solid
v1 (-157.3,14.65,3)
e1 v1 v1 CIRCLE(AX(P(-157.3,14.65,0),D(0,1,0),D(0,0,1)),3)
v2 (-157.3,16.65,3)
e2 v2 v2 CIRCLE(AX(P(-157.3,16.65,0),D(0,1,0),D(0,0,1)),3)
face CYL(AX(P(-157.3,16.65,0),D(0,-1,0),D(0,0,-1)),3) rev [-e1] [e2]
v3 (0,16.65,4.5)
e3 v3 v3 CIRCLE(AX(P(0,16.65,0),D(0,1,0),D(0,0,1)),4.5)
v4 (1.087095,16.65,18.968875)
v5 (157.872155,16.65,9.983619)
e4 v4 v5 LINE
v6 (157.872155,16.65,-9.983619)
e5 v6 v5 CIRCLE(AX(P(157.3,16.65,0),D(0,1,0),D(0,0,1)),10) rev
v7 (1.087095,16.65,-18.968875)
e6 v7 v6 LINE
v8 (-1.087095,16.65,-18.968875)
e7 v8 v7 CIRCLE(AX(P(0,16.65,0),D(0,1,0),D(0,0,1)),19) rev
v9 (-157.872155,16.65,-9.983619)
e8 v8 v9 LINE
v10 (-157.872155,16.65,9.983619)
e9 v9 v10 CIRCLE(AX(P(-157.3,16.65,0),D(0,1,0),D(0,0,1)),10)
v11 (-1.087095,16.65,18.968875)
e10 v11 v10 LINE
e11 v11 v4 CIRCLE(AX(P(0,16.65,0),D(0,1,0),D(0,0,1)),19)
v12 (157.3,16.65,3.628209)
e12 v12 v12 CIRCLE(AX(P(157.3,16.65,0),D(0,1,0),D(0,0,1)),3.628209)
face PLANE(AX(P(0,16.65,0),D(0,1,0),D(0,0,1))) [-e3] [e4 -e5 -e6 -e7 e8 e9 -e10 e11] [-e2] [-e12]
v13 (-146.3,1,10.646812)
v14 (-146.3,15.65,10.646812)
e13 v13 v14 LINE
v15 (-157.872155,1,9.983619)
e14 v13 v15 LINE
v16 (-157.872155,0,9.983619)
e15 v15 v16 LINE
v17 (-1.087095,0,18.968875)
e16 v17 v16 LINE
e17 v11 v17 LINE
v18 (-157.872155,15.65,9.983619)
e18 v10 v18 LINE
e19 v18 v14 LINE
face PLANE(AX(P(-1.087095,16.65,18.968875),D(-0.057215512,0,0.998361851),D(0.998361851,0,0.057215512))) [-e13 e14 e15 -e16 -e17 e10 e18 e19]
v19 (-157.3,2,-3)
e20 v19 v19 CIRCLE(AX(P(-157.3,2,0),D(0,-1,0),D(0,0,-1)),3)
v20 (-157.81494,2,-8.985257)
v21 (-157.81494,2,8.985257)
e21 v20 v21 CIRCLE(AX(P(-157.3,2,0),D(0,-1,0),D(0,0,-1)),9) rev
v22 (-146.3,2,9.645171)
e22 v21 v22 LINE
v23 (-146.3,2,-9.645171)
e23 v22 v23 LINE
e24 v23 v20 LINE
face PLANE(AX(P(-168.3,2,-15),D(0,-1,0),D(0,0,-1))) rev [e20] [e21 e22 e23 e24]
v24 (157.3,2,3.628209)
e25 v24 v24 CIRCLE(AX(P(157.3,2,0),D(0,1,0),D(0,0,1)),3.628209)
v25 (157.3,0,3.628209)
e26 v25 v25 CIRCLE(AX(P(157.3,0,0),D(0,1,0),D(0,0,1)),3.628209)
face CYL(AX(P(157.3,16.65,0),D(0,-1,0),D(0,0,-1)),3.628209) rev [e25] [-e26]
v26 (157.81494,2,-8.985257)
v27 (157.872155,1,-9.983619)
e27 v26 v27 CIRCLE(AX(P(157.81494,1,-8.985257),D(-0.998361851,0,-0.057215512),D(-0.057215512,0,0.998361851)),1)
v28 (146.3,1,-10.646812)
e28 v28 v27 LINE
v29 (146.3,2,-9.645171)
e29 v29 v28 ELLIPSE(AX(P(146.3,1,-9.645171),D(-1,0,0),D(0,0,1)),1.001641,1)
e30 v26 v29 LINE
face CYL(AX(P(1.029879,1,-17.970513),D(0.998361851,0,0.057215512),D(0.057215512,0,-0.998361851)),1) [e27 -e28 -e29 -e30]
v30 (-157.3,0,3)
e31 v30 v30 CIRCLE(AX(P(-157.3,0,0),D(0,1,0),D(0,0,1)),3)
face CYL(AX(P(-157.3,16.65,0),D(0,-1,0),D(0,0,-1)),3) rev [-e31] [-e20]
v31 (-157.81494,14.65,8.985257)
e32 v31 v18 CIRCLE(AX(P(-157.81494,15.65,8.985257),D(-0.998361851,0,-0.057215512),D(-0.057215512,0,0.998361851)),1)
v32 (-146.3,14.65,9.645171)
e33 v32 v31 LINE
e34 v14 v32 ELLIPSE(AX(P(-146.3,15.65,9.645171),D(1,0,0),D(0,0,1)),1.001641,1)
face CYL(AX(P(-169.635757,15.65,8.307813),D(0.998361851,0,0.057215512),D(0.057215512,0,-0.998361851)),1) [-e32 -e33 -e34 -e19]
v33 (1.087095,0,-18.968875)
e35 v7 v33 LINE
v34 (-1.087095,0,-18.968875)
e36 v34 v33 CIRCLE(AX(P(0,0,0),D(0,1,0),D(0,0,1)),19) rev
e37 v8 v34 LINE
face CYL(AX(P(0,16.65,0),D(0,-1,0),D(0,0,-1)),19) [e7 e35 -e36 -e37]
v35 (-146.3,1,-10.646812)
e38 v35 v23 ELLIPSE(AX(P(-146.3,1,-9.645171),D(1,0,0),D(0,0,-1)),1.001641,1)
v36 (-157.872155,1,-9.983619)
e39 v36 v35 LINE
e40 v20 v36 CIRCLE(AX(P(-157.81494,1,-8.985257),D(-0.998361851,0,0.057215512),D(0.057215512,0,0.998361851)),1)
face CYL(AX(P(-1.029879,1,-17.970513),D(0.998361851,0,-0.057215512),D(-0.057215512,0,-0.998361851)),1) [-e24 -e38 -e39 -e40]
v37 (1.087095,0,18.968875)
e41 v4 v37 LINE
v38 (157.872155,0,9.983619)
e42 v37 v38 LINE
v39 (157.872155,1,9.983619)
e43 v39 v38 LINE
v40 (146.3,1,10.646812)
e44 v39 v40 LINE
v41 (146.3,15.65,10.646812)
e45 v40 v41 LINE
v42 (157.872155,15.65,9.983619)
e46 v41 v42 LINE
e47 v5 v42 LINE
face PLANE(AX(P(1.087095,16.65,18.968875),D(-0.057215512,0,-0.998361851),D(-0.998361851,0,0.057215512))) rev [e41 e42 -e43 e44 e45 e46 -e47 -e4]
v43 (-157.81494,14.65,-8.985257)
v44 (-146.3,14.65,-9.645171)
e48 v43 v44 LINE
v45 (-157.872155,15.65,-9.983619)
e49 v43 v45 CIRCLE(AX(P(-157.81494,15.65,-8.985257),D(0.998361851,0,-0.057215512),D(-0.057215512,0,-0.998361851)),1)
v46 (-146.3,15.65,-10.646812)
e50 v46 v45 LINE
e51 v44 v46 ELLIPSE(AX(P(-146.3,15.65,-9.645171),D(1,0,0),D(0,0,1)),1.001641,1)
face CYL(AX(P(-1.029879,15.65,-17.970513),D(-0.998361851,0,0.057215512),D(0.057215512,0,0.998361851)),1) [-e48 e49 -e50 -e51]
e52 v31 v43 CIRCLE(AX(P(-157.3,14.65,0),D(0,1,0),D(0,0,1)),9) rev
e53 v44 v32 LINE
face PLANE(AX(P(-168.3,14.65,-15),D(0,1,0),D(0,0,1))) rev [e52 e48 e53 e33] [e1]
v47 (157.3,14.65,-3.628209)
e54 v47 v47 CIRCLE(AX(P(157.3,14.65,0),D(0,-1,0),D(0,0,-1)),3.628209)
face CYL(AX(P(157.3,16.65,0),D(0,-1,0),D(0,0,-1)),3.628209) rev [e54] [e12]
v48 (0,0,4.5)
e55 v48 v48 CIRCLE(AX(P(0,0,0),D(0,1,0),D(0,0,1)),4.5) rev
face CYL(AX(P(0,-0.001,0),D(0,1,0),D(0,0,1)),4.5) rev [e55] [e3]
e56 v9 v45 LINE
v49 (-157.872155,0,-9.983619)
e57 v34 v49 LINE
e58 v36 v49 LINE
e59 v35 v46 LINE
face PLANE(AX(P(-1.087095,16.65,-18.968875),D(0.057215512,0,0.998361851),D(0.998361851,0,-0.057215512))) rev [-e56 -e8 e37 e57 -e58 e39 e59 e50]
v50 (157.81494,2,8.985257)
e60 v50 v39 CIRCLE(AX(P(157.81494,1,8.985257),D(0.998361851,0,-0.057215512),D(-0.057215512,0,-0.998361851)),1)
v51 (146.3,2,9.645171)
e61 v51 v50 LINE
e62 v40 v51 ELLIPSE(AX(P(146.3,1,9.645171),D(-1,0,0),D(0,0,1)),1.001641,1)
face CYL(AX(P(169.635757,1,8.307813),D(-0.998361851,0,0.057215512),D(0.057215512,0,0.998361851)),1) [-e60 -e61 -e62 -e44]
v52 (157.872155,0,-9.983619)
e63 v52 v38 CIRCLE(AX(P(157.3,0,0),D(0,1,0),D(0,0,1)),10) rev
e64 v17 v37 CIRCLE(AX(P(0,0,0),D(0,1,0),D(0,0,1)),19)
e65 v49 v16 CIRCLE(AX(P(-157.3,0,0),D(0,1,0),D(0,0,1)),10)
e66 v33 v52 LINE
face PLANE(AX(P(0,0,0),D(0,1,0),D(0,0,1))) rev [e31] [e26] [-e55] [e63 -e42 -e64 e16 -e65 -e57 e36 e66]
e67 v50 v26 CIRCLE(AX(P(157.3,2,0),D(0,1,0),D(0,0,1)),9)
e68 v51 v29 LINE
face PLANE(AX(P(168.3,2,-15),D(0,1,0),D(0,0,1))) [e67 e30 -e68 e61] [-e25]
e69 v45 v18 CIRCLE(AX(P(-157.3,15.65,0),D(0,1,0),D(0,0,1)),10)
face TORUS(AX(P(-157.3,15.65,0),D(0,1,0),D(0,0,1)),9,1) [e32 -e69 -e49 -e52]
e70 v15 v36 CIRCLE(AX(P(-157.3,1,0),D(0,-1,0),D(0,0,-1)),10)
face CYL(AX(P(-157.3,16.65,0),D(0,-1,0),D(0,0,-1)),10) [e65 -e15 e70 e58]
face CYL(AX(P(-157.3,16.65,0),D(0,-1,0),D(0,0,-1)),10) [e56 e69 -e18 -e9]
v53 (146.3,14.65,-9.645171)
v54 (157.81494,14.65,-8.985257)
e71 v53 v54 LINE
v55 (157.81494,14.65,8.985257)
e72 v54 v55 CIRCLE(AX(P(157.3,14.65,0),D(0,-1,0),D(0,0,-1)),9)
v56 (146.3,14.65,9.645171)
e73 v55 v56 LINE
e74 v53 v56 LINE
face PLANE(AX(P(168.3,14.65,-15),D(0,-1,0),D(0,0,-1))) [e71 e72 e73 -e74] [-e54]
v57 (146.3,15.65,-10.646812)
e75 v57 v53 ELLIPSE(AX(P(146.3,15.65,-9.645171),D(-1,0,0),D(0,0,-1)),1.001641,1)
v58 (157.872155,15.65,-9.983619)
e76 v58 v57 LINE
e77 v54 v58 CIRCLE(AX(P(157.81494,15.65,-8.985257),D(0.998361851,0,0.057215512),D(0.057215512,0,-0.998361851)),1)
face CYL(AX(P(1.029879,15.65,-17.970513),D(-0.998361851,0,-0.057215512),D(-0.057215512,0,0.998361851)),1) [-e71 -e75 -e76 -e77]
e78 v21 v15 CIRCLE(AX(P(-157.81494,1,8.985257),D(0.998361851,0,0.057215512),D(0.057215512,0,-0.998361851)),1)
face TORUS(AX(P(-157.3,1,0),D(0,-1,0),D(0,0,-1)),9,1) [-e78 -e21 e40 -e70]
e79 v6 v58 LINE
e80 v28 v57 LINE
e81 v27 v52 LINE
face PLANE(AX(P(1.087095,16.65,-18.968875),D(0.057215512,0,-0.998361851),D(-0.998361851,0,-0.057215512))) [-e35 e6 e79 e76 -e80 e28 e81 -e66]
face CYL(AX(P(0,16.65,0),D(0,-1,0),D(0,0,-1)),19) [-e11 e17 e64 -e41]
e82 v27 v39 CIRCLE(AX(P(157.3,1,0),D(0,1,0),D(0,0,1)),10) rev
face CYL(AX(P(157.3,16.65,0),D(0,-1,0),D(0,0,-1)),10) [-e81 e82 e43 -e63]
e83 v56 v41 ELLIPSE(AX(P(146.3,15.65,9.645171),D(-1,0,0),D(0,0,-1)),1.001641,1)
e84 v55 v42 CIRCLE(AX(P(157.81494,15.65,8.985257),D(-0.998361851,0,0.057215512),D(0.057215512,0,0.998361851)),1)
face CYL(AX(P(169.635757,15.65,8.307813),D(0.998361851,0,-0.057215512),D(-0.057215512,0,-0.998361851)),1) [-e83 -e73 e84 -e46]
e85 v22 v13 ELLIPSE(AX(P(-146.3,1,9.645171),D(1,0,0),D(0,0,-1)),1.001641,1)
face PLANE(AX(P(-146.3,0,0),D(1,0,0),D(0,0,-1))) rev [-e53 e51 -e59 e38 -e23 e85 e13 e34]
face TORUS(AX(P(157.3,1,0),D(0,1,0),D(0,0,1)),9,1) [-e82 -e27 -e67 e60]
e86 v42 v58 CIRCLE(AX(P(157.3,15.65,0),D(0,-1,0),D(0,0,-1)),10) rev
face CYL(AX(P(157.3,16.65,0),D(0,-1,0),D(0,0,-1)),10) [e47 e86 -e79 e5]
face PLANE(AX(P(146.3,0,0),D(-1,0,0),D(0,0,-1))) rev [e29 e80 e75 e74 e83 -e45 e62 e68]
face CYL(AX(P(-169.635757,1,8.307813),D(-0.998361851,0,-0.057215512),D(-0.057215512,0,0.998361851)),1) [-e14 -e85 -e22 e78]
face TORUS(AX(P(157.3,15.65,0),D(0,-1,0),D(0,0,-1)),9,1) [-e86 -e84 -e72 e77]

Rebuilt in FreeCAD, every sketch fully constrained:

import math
import FreeCAD as App
import Part
import Sketcher

V = App.Vector
Q = App.Units.Quantity


def edges_at(feature, points):
    """Names of the edges that pass closest to the given points."""
    edges = feature.Shape.Edges
    near = lambda p: min(range(len(edges)), key=lambda i: edges[i].distToShape(Part.Vertex(*p))[0])
    return sorted({f"Edge{near(p) + 1}" for p in points})


def add_polygon(sketch, points):
    """Adds a closed chain of lines whose ends are joined by coincident constraints."""
    first, n = sketch.GeometryCount, len(points)
    for a, b in zip(points, points[1:] + points[:1]):
        sketch.addGeometry(Part.LineSegment(App.Vector(*a, 0), App.Vector(*b, 0)), False)
    for i in range(n):
        sketch.addConstraint(Sketcher.Constraint("Coincident", first + i, 2, first + (i + 1) % n, 1))

doc = App.newDocument("Part")
body = doc.addObject("PartDesign::Body", "Body")

sketch1 = body.newObject("Sketcher::SketchObject", "Sketch")
sketch1.AttachmentSupport = (doc.getObject("XZ_Plane"), [""])
sketch1.MapMode = "FlatFace"
sketch1.addGeometry([
    Part.LineSegment(V(-157.9, 10, 0), V(-1.1, 19, 0)),
    Part.ArcOfCircle(Part.Circle(V(0, 0, 0), V(0, 0, 1), 19), math.radians(86.72), math.radians(93.28)),
    Part.LineSegment(V(1.1, 19, 0), V(157.9, 10, 0)),
    Part.ArcOfCircle(Part.Circle(V(157.3, 0, 0), V(0, 0, 1), 10), math.radians(-87), math.radians(87)),
    Part.LineSegment(V(157.9, -10, 0), V(1.1, -19, 0)),
    Part.ArcOfCircle(Part.Circle(V(0, 0, 0), V(0, 0, 1), 19), math.radians(-93.28), math.radians(-86.72)),
    Part.LineSegment(V(-1.1, -19, 0), V(-157.9, -10, 0)),
    Part.ArcOfCircle(Part.Circle(V(-157.3, 0, 0), V(0, 0, 1), 10), math.radians(93), math.radians(267)),
    Part.Circle(V(157.3, 0, 0), V(0, 0, 1), 3.6),
    Part.Circle(V(-157.3, 0, 0), V(0, 0, 1), 3),
], False)
sketch1.addConstraint([
    Sketcher.Constraint("Tangent", 0, 2, 1, 2),
    Sketcher.Constraint("Tangent", 1, 1, 2, 1),
    Sketcher.Constraint("Tangent", 2, 2, 3, 2),
    Sketcher.Constraint("Tangent", 3, 1, 4, 1),
    Sketcher.Constraint("Tangent", 4, 2, 5, 2),
    Sketcher.Constraint("Tangent", 5, 1, 6, 1),
    Sketcher.Constraint("Tangent", 6, 2, 7, 2),
    Sketcher.Constraint("Tangent", 7, 1, 0, 1),
    Sketcher.Constraint("Coincident", 1, 3, -1, 1),
    Sketcher.Constraint("Coincident", 5, 3, -1, 1),
    Sketcher.Constraint("Coincident", 8, 3, 3, 3),
    Sketcher.Constraint("Coincident", 9, 3, 7, 3),
    Sketcher.Constraint("Equal", 1, 5),
    Sketcher.Constraint("Equal", 3, 7),
    Sketcher.Constraint("Symmetric", 3, 3, 7, 3, -1, 1),
    Sketcher.Constraint("PointOnObject", 3, 3, -1),
    Sketcher.Constraint("Diameter", 9, Q("6 mm")),
    Sketcher.Constraint("Radius", 1, Q("19 mm")),
    Sketcher.Constraint("Radius", 3, Q("10 mm")),
    Sketcher.Constraint("DistanceX", -1, 1, 3, 3, Q("157.3 mm")),
    Sketcher.Constraint("Diameter", 8, Q("7.256418 mm")),
])
pad1 = body.newObject("PartDesign::Pad", "Pad")
pad1.Profile = sketch1
pad1.Length = 16.65
pad1.Reversed = True

sketch2 = body.newObject("Sketcher::SketchObject", "Sketch001")
sketch2.AttachmentSupport = (doc.getObject("YZ_Plane"), [""])
sketch2.MapMode = "FlatFace"
sketch2.AttachmentOffset = App.Placement(V(0, 0, -157.3), App.Rotation())
add_polygon(sketch2, [(15, 15), (2, 15), (2, -15), (15, -15)])
sketch2.addConstraint([
    Sketcher.Constraint("Horizontal", 0),
    Sketcher.Constraint("Vertical", 1),
    Sketcher.Constraint("Horizontal", 2),
    Sketcher.Constraint("Vertical", 3),
    Sketcher.Constraint("DistanceY", 1, 2, 1, 1, Q("30 mm")),
    Sketcher.Constraint("DistanceX", -1, 1, 0, 2, Q("2 mm")),
    Sketcher.Constraint("DistanceY", -1, 1, 0, 2, Q("15 mm")),
    Sketcher.Constraint("DistanceX", 0, 2, 0, 1, Q("12.65 mm")),
])
pocket1 = body.newObject("PartDesign::Pocket", "Pocket")
pocket1.Profile = sketch2
pocket1.Length = 22
pocket1.Midplane = True
doc.recompute()

mirrored = body.newObject("PartDesign::Mirrored", "Mirrored")
mirrored.Originals = [pocket1]
mirrored.MirrorPlane = (doc.getObject("YZ_Plane"), [""])
body.Tip = mirrored

sketch3 = body.newObject("Sketcher::SketchObject", "Sketch002")
sketch3.AttachmentSupport = (doc.getObject("XZ_Plane"), [""])
sketch3.MapMode = "FlatFace"
sketch3.AttachmentOffset = App.Placement(V(0, 0, -16.65), App.Rotation())
sketch3.addGeometry(Part.Circle(V(0, 0, 0), V(0, 0, 1), 4.5), False)
sketch3.addConstraint([
    Sketcher.Constraint("Coincident", 0, 3, -1, 1),
    Sketcher.Constraint("Diameter", 0, Q("9 mm")),
])
pocket2 = body.newObject("PartDesign::Pocket", "Pocket001")
pocket2.Profile = sketch3
pocket2.Type = "UpToFirst"
pocket2.Reversed = True
doc.recompute()

fillet = body.newObject("PartDesign::Fillet", "Fillet")
fillet.Base = (pocket2, edges_at(pocket2, [
    (-167.3, 2, 0),
    (-167.3, 14.65, 0),
    (-152.086, 14.65, 10.315),
    (-152.086, 2, 10.315),
    (-152.086, 14.65, -10.315),
    (-152.086, 2, -10.315),
    (152.086, 2, -10.315),
    (167.3, 2, 0),
    (167.3, 14.65, 0),
    (152.086, 14.65, -10.315),
    (152.086, 2, 10.315),
    (152.086, 14.65, 10.315),
]))
fillet.Radius = 1

doc.recompute()
